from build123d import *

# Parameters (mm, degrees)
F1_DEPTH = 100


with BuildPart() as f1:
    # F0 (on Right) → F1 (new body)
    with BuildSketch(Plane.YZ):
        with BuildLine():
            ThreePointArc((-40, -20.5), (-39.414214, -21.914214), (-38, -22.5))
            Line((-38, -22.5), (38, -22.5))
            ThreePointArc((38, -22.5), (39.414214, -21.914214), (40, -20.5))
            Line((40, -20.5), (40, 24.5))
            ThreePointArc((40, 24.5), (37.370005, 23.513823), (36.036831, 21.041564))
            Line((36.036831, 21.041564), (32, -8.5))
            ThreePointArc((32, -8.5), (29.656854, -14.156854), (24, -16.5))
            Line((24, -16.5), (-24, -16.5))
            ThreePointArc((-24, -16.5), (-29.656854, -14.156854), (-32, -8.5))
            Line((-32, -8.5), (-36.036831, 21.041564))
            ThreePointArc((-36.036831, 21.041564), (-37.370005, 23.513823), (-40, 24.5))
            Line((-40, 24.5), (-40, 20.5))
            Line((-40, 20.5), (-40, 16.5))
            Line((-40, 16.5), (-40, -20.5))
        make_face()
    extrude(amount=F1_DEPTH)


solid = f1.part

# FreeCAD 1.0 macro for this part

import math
import FreeCAD as App
import Part
import Sketcher

V = App.Vector

doc = App.newDocument("Part")
params = doc.addObject("Spreadsheet::Sheet", "Params")
for row, (alias, value) in enumerate([
    ("sketch1_radius", "1.999999 mm"),
    ("sketch1_radius2", "3.999999 mm"),
    ("sketch1_radius3", "8.000001 mm"),
    ("sketch1_width", "76 mm"),
    ("sketch1_width2", "48 mm"),
    ("pad1_length", "100 mm"),
], start=1):
    params.set(f"A{row}", alias)
    params.set(f"B{row}", "=" + value)
    params.setAlias(f"B{row}", alias)

body = doc.addObject("PartDesign::Body", "Body")

sketch1 = doc.addObject("Sketcher::SketchObject", "Sketch")
body.addObject(sketch1)
sketch1.AttachmentSupport = (doc.YZ_Plane, [""])
sketch1.MapMode = "FlatFace"
sketch1.addGeometry(Part.ArcOfCircle(Part.Circle(V(-38, -20.5, 0), V(0, 0, 1), 2), math.radians(180), math.radians(270)), False)
sketch1.addGeometry(Part.LineSegment(V(-38, -22.5, 0), V(38, -22.5, 0)), False)
sketch1.addGeometry(Part.ArcOfCircle(Part.Circle(V(38, -20.5, 0), V(0, 0, 1), 2), math.radians(-90), math.radians(0)), False)
sketch1.addGeometry(Part.LineSegment(V(40, -20.5, 0), V(40, 24.5, 0)), False)
sketch1.addGeometry(Part.ArcOfCircle(Part.Circle(V(40, 20.5, 0), V(0, 0, 1), 4), math.radians(90), math.radians(172)), False)
sketch1.addGeometry(Part.LineSegment(V(36, 21, 0), V(32, -8.5, 0)), False)
sketch1.addGeometry(Part.ArcOfCircle(Part.Circle(V(24, -8.5, 0), V(0, 0, 1), 8), math.radians(-90), math.radians(0)), False)
sketch1.addGeometry(Part.LineSegment(V(24, -16.5, 0), V(-24, -16.5, 0)), False)
sketch1.addGeometry(Part.ArcOfCircle(Part.Circle(V(-24, -8.5, 0), V(0, 0, 1), 8), math.radians(-180), math.radians(-90)), False)
sketch1.addGeometry(Part.LineSegment(V(-32, -8.5, 0), V(-36, 21, 0)), False)
sketch1.addGeometry(Part.ArcOfCircle(Part.Circle(V(-40, 20.5, 0), V(0, 0, 1), 4), math.radians(8), math.radians(90)), False)
sketch1.addGeometry(Part.LineSegment(V(-40, 24.5, 0), V(-40, -20.5, 0)), False)
sketch1.addConstraint(Sketcher.Constraint("Tangent", 0, 2, 1, 1))
sketch1.addConstraint(Sketcher.Constraint("Tangent", 1, 2, 2, 1))
sketch1.addConstraint(Sketcher.Constraint("Tangent", 2, 2, 3, 1))
sketch1.addConstraint(Sketcher.Constraint("Coincident", 3, 2, 4, 1))
sketch1.addConstraint(Sketcher.Constraint("Tangent", 4, 2, 5, 1))
sketch1.addConstraint(Sketcher.Constraint("Coincident", 5, 2, 6, 2))
sketch1.addConstraint(Sketcher.Constraint("Tangent", 6, 1, 7, 1))
sketch1.addConstraint(Sketcher.Constraint("Tangent", 7, 2, 8, 2))
sketch1.addConstraint(Sketcher.Constraint("Coincident", 8, 1, 9, 1))
sketch1.addConstraint(Sketcher.Constraint("Tangent", 9, 2, 10, 1))
sketch1.addConstraint(Sketcher.Constraint("Coincident", 10, 2, 11, 1))
sketch1.addConstraint(Sketcher.Constraint("Tangent", 11, 2, 0, 1))
sketch1.addConstraint(Sketcher.Constraint("Horizontal", 1))
sketch1.addConstraint(Sketcher.Constraint("Vertical", 3))
sketch1.addConstraint(Sketcher.Constraint("Horizontal", 7))
sketch1.addConstraint(Sketcher.Constraint("Vertical", 11))
sketch1.addConstraint(Sketcher.Constraint("Equal", 0, 2))
sketch1.addConstraint(Sketcher.Constraint("Equal", 6, 8))
sketch1.addConstraint(Sketcher.Constraint("Equal", 4, 10))
sketch1.addConstraint(Sketcher.Constraint("Symmetric", 4, 3, 10, 3, -2))
sketch1.addConstraint(Sketcher.Constraint("Symmetric", 5, 2, 8, 1, -2))
sketch1.addConstraint(Sketcher.Constraint("Horizontal", 8, 3, 5, 2))
sketch1.addConstraint(Sketcher.Constraint("Vertical", 4, 3, 2, 2))
sketch1.addConstraint(Sketcher.Constraint("Radius", 0, 1.999999))
sketch1.addConstraint(Sketcher.Constraint("Radius", 4, 3.999999))
sketch1.addConstraint(Sketcher.Constraint("Radius", 6, 8.000001))
sketch1.addConstraint(Sketcher.Constraint("DistanceX", 1, 1, 1, 2, 76.0))
sketch1.addConstraint(Sketcher.Constraint("DistanceX", 7, 2, 7, 1, 48.0))
sketch1.addConstraint(Sketcher.Constraint("DistanceY", 3, 1, 3, 2, 45.0))
sketch1.addConstraint(Sketcher.Constraint("DistanceX", 0, 3, -1, 1, 38.000001))
sketch1.addConstraint(Sketcher.Constraint("DistanceY", 6, 3, 4, 3, 29.0))
sketch1.addConstraint(Sketcher.Constraint("DistanceY", 0, 3, -1, 1, 20.500001))
sketch1.setExpression("Constraints[23]", "Params.sketch1_radius")
sketch1.setExpression("Constraints[24]", "Params.sketch1_radius2")
sketch1.setExpression("Constraints[25]", "Params.sketch1_radius3")
sketch1.setExpression("Constraints[26]", "Params.sketch1_width")
sketch1.setExpression("Constraints[27]", "Params.sketch1_width2")
pad1 = doc.addObject("PartDesign::Pad", "Pad")
body.addObject(pad1)
pad1.Profile = sketch1
pad1.setExpression("Length", "Params.pad1_length")

doc.recompute()
